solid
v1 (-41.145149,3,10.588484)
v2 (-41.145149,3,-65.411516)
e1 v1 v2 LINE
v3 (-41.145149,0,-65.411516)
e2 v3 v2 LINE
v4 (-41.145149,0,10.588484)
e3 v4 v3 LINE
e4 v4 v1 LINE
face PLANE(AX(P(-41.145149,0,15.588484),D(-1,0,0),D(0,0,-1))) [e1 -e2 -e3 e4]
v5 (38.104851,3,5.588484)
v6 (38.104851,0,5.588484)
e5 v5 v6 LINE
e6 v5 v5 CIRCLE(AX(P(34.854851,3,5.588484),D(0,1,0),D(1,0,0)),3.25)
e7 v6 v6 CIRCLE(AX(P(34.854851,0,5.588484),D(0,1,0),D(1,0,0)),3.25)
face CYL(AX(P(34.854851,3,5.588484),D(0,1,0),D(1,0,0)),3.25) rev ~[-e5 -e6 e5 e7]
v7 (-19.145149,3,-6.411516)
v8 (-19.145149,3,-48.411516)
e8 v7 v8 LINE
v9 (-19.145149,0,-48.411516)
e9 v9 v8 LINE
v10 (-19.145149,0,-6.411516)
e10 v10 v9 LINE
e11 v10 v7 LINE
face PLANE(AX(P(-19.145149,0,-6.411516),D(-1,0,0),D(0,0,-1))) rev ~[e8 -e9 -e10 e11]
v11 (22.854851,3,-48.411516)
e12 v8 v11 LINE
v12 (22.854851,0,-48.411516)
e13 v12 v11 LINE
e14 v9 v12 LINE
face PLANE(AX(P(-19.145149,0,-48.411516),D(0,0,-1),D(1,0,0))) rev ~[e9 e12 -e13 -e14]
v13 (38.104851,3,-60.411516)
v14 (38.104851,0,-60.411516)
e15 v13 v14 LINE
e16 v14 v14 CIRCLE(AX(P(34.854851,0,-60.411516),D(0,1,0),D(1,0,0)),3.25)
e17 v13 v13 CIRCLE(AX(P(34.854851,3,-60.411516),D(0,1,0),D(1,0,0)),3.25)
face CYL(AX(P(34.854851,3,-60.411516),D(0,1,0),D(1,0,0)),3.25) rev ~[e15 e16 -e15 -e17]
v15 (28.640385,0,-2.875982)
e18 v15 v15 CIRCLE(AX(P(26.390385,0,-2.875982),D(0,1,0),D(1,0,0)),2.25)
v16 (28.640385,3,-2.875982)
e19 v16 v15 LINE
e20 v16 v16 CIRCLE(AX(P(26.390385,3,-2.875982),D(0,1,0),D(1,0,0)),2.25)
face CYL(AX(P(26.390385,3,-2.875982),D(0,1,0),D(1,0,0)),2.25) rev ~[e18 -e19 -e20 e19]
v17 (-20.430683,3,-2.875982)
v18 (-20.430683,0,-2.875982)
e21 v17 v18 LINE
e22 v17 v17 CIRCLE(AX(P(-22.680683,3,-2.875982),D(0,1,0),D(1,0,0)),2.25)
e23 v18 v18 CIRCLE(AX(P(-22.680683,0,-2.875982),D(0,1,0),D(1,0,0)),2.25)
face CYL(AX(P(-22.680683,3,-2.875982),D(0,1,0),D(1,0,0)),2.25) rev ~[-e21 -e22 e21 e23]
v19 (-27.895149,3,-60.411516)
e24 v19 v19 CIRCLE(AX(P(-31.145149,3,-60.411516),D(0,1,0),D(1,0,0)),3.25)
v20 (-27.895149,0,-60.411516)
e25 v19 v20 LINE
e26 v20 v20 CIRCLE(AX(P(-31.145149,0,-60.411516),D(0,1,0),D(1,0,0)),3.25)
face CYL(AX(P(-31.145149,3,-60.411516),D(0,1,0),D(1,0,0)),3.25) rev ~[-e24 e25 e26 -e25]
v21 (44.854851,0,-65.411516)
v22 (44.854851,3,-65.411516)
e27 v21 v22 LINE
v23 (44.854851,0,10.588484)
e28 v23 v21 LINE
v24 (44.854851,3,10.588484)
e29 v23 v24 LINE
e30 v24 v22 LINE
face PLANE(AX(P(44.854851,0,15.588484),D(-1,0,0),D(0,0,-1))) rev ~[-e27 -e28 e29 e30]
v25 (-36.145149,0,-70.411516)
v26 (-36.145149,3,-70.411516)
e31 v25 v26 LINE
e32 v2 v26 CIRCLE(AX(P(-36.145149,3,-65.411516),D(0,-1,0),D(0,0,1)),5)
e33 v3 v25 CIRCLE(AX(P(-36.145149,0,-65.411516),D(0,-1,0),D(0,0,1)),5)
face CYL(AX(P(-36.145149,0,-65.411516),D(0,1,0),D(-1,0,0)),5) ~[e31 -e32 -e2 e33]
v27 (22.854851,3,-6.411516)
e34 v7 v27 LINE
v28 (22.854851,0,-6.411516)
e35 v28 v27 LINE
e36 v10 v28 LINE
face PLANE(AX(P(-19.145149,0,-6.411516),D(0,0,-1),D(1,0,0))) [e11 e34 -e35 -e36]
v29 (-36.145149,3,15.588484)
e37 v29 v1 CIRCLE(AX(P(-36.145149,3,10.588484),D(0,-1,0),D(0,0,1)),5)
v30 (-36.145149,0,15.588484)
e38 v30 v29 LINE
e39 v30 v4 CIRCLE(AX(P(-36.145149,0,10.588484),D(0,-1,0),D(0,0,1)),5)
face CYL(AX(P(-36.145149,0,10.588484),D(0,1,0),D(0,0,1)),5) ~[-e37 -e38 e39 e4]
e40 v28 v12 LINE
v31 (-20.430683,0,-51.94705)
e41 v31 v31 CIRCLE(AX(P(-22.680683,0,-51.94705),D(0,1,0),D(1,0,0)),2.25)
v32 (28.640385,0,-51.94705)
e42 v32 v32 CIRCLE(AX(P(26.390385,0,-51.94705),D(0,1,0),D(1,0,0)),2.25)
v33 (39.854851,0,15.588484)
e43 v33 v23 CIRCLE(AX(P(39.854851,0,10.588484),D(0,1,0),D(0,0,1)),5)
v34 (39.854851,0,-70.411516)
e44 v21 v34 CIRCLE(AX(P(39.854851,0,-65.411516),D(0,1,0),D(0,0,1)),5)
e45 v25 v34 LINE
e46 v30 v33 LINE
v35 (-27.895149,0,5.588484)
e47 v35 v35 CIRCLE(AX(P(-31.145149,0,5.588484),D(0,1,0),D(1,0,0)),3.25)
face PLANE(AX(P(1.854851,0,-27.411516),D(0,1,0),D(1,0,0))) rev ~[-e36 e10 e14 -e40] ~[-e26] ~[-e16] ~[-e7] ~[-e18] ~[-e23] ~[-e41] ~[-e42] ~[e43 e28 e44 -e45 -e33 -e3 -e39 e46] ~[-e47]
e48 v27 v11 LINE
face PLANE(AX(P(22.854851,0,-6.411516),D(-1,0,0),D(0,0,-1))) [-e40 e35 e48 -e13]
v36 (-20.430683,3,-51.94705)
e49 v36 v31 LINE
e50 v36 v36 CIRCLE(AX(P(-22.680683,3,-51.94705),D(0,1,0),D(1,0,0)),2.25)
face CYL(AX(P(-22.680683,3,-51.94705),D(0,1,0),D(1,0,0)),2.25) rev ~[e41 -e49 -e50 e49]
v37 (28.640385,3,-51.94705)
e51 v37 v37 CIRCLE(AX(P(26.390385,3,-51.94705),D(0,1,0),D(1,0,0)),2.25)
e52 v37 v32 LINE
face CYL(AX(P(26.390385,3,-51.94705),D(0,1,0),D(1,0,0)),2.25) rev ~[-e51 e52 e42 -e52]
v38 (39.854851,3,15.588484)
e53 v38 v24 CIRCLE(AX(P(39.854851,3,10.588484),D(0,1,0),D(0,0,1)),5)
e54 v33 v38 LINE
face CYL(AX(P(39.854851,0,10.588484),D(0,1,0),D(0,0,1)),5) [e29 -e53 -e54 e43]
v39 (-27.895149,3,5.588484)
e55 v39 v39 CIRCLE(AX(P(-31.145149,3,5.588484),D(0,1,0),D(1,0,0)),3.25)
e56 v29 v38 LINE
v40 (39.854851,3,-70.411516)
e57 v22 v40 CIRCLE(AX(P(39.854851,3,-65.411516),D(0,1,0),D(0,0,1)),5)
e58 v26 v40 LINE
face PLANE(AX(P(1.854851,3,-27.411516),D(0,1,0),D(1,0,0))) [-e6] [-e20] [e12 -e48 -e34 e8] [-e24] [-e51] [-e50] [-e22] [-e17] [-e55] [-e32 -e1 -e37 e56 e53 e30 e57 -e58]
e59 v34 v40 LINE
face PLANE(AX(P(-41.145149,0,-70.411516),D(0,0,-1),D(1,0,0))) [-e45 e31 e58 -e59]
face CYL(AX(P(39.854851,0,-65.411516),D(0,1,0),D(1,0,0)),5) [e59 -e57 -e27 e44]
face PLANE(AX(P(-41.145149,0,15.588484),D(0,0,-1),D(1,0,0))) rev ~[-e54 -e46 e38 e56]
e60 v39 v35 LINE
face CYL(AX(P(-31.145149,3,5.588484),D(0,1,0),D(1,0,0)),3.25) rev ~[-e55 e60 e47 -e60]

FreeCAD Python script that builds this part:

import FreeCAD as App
import Part
import Sketcher
from FreeCAD import Vector


def edges_at(feature, points):
    """Names of the edges that pass closest to the given points."""
    edges = feature.Shape.Edges
    near = lambda p: min(range(len(edges)), key=lambda i: edges[i].distToShape(Part.Vertex(*p))[0])
    return sorted({f"Edge{near(p) + 1}" for p in points})

doc = App.newDocument("Part")
body = doc.addObject("PartDesign::Body", "Body")

# Sketch on XZ plane
sketch1 = body.newObject("Sketcher::SketchObject", "Sketch")
sketch1.AttachmentSupport = (doc.getObject("XZ_Plane"), [""])
sketch1.MapMode = "FlatFace"
sketch1.addGeometry([
    Part.LineSegment(Vector(-41.145149, -70.411516, 0), Vector(-41.145149, 15.588484, 0)),  # 0
    Part.LineSegment(Vector(-41.145149, 15.588484, 0), Vector(44.854851, 15.588484, 0)),  # 1
    Part.LineSegment(Vector(44.854851, 15.588484, 0), Vector(44.854851, -70.411516, 0)),  # 2
    Part.LineSegment(Vector(44.854851, -70.411516, 0), Vector(-41.145149, -70.411516, 0)),  # 3
    Part.LineSegment(Vector(22.854851, -6.411516, 0), Vector(-19.145149, -6.411516, 0)),  # 4
    Part.LineSegment(Vector(-19.145149, -6.411516, 0), Vector(-19.145149, -48.411516, 0)),  # 5
    Part.LineSegment(Vector(-19.145149, -48.411516, 0), Vector(22.854851, -48.411516, 0)),  # 6
    Part.LineSegment(Vector(22.854851, -48.411516, 0), Vector(22.854851, -6.411516, 0)),  # 7
], False)
sketch1.addConstraint([
    Sketcher.Constraint("Coincident", 0, 2, 1, 1),
    Sketcher.Constraint("Coincident", 1, 2, 2, 1),
    Sketcher.Constraint("Coincident", 2, 2, 3, 1),
    Sketcher.Constraint("Coincident", 3, 2, 0, 1),
    Sketcher.Constraint("Coincident", 4, 2, 5, 1),
    Sketcher.Constraint("Coincident", 5, 2, 6, 1),
    Sketcher.Constraint("Coincident", 6, 2, 7, 1),
    Sketcher.Constraint("Coincident", 7, 2, 4, 1),
    Sketcher.Constraint("Vertical", 0),
    Sketcher.Constraint("Horizontal", 1),
    Sketcher.Constraint("Vertical", 2),
    Sketcher.Constraint("Horizontal", 3),
    Sketcher.Constraint("Horizontal", 4),
    Sketcher.Constraint("Vertical", 5),
    Sketcher.Constraint("Horizontal", 6),
    Sketcher.Constraint("Vertical", 7),
    Sketcher.Constraint("Equal", 3, 0),
    Sketcher.Constraint("Equal", 6, 5),
    Sketcher.Constraint("DistanceX", 1, 1, 1, 2, 86.0),
    Sketcher.Constraint("DistanceX", 4, 2, 4, 1, 42.0),
    Sketcher.Constraint("DistanceX", 0, 2, 4, 2, 22.0),
    Sketcher.Constraint("DistanceY", 4, 2, 0, 2, 22.0),
    Sketcher.Constraint("DistanceX", 0, 2, -1, 1, 41.145149),
    Sketcher.Constraint("DistanceY", -1, 1, 0, 2, 15.588484),
])
pad1 = body.newObject("PartDesign::Pad", "Pad")
pad1.Profile = sketch1
pad1.Length = 3
pad1.Reversed = True

# Sketch on XZ plane
sketch2 = body.newObject("Sketcher::SketchObject", "Sketch001")
sketch2.AttachmentSupport = (doc.getObject("XZ_Plane"), [""])
sketch2.MapMode = "FlatFace"
sketch2.AttachmentOffset = App.Placement(Vector(0, 0, -3), App.Rotation())
sketch2.addGeometry([
    Part.Circle(Vector(34.854851, 5.588484, 0), Vector(0, 0, 1), 3.25),
    Part.Circle(Vector(-31.145149, 5.588484, 0), Vector(0, 0, 1), 3.25),
    Part.Circle(Vector(-31.145149, -60.411516, 0), Vector(0, 0, 1), 3.25),
    Part.Circle(Vector(34.854851, -60.411516, 0), Vector(0, 0, 1), 3.25),
], False)
sketch2.addConstraint([
    Sketcher.Constraint("Equal", 0, 1),
    Sketcher.Constraint("Equal", 1, 2),
    Sketcher.Constraint("Equal", 2, 3),
    Sketcher.Constraint("Horizontal", 0, 3, 1, 3),
    Sketcher.Constraint("Horizontal", 2, 3, 3, 3),
    Sketcher.Constraint("Vertical", 1, 3, 2, 3),
    Sketcher.Constraint("Vertical", 0, 3, 3, 3),
    Sketcher.Constraint("Diameter", 0, 6.5),
    Sketcher.Constraint("DistanceX", 1, 3, 0, 3, 66.0),
    Sketcher.Constraint("DistanceY", 2, 3, 1, 3, 66.0),
    Sketcher.Constraint("DistanceX", -1, 1, 0, 3, 34.854851),
    Sketcher.Constraint("DistanceY", -1, 1, 0, 3, 5.588484),
])
pocket1 = body.newObject("PartDesign::Pocket", "Pocket")
pocket1.Profile = sketch2
pocket1.Length = 3
pocket1.Reversed = True

# Sketch on XZ plane
sketch3 = body.newObject("Sketcher::SketchObject", "Sketch002")
sketch3.AttachmentSupport = (doc.getObject("XZ_Plane"), [""])
sketch3.MapMode = "FlatFace"
sketch3.AttachmentOffset = App.Placement(Vector(0, 0, -3), App.Rotation())
sketch3.addGeometry([
    Part.Circle(Vector(26.390385, -2.875982, 0), Vector(0, 0, 1), 2.25),
    Part.Circle(Vector(-22.680683, -2.875982, 0), Vector(0, 0, 1), 2.25),
    Part.Circle(Vector(-22.680683, -51.94705, 0), Vector(0, 0, 1), 2.25),
    Part.Circle(Vector(26.390385, -51.94705, 0), Vector(0, 0, 1), 2.25),
], False)
sketch3.addConstraint([
    Sketcher.Constraint("Equal", 0, 1),
    Sketcher.Constraint("Equal", 1, 2),
    Sketcher.Constraint("Equal", 2, 3),
    Sketcher.Constraint("Horizontal", 0, 3, 1, 3),
    Sketcher.Constraint("Horizontal", 2, 3, 3, 3),
    Sketcher.Constraint("Vertical", 1, 3, 2, 3),
    Sketcher.Constraint("Vertical", 0, 3, 3, 3),
    Sketcher.Constraint("Diameter", 0, 4.5),
    Sketcher.Constraint("DistanceY", 0, 3, -1, 1, 2.875982),
    Sketcher.Constraint("DistanceY", 2, 3, -1, 1, 51.94705),
    Sketcher.Constraint("DistanceX", -1, 1, 0, 3, 26.390385),
    Sketcher.Constraint("DistanceX", 1, 3, -1, 1, 22.680683),
])
pocket2 = body.newObject("PartDesign::Pocket", "Pocket001")
pocket2.Profile = sketch3
pocket2.Length = 3
pocket2.Reversed = True
doc.recompute()

fillet = body.newObject("PartDesign::Fillet", "Fillet")
fillet.Base = (pocket2, edges_at(pocket2, [(-41.145, 1.5, -70.412)]))
fillet.Radius = 5
doc.recompute()

fillet2 = body.newObject("PartDesign::Fillet", "Fillet001")
fillet2.Base = (fillet, edges_at(fillet, [(44.855, 1.5, 15.588)]))
fillet2.Radius = 5
doc.recompute()

fillet3 = body.newObject("PartDesign::Fillet", "Fillet002")
fillet3.Base = (fillet2, edges_at(fillet2, [(-41.145, 1.5, 15.588)]))
fillet3.Radius = 5
doc.recompute()

fillet4 = body.newObject("PartDesign::Fillet", "Fillet003")
fillet4.Base = (fillet3, edges_at(fillet3, [(44.855, 1.5, -70.412)]))
fillet4.Radius = 5

doc.recompute()
